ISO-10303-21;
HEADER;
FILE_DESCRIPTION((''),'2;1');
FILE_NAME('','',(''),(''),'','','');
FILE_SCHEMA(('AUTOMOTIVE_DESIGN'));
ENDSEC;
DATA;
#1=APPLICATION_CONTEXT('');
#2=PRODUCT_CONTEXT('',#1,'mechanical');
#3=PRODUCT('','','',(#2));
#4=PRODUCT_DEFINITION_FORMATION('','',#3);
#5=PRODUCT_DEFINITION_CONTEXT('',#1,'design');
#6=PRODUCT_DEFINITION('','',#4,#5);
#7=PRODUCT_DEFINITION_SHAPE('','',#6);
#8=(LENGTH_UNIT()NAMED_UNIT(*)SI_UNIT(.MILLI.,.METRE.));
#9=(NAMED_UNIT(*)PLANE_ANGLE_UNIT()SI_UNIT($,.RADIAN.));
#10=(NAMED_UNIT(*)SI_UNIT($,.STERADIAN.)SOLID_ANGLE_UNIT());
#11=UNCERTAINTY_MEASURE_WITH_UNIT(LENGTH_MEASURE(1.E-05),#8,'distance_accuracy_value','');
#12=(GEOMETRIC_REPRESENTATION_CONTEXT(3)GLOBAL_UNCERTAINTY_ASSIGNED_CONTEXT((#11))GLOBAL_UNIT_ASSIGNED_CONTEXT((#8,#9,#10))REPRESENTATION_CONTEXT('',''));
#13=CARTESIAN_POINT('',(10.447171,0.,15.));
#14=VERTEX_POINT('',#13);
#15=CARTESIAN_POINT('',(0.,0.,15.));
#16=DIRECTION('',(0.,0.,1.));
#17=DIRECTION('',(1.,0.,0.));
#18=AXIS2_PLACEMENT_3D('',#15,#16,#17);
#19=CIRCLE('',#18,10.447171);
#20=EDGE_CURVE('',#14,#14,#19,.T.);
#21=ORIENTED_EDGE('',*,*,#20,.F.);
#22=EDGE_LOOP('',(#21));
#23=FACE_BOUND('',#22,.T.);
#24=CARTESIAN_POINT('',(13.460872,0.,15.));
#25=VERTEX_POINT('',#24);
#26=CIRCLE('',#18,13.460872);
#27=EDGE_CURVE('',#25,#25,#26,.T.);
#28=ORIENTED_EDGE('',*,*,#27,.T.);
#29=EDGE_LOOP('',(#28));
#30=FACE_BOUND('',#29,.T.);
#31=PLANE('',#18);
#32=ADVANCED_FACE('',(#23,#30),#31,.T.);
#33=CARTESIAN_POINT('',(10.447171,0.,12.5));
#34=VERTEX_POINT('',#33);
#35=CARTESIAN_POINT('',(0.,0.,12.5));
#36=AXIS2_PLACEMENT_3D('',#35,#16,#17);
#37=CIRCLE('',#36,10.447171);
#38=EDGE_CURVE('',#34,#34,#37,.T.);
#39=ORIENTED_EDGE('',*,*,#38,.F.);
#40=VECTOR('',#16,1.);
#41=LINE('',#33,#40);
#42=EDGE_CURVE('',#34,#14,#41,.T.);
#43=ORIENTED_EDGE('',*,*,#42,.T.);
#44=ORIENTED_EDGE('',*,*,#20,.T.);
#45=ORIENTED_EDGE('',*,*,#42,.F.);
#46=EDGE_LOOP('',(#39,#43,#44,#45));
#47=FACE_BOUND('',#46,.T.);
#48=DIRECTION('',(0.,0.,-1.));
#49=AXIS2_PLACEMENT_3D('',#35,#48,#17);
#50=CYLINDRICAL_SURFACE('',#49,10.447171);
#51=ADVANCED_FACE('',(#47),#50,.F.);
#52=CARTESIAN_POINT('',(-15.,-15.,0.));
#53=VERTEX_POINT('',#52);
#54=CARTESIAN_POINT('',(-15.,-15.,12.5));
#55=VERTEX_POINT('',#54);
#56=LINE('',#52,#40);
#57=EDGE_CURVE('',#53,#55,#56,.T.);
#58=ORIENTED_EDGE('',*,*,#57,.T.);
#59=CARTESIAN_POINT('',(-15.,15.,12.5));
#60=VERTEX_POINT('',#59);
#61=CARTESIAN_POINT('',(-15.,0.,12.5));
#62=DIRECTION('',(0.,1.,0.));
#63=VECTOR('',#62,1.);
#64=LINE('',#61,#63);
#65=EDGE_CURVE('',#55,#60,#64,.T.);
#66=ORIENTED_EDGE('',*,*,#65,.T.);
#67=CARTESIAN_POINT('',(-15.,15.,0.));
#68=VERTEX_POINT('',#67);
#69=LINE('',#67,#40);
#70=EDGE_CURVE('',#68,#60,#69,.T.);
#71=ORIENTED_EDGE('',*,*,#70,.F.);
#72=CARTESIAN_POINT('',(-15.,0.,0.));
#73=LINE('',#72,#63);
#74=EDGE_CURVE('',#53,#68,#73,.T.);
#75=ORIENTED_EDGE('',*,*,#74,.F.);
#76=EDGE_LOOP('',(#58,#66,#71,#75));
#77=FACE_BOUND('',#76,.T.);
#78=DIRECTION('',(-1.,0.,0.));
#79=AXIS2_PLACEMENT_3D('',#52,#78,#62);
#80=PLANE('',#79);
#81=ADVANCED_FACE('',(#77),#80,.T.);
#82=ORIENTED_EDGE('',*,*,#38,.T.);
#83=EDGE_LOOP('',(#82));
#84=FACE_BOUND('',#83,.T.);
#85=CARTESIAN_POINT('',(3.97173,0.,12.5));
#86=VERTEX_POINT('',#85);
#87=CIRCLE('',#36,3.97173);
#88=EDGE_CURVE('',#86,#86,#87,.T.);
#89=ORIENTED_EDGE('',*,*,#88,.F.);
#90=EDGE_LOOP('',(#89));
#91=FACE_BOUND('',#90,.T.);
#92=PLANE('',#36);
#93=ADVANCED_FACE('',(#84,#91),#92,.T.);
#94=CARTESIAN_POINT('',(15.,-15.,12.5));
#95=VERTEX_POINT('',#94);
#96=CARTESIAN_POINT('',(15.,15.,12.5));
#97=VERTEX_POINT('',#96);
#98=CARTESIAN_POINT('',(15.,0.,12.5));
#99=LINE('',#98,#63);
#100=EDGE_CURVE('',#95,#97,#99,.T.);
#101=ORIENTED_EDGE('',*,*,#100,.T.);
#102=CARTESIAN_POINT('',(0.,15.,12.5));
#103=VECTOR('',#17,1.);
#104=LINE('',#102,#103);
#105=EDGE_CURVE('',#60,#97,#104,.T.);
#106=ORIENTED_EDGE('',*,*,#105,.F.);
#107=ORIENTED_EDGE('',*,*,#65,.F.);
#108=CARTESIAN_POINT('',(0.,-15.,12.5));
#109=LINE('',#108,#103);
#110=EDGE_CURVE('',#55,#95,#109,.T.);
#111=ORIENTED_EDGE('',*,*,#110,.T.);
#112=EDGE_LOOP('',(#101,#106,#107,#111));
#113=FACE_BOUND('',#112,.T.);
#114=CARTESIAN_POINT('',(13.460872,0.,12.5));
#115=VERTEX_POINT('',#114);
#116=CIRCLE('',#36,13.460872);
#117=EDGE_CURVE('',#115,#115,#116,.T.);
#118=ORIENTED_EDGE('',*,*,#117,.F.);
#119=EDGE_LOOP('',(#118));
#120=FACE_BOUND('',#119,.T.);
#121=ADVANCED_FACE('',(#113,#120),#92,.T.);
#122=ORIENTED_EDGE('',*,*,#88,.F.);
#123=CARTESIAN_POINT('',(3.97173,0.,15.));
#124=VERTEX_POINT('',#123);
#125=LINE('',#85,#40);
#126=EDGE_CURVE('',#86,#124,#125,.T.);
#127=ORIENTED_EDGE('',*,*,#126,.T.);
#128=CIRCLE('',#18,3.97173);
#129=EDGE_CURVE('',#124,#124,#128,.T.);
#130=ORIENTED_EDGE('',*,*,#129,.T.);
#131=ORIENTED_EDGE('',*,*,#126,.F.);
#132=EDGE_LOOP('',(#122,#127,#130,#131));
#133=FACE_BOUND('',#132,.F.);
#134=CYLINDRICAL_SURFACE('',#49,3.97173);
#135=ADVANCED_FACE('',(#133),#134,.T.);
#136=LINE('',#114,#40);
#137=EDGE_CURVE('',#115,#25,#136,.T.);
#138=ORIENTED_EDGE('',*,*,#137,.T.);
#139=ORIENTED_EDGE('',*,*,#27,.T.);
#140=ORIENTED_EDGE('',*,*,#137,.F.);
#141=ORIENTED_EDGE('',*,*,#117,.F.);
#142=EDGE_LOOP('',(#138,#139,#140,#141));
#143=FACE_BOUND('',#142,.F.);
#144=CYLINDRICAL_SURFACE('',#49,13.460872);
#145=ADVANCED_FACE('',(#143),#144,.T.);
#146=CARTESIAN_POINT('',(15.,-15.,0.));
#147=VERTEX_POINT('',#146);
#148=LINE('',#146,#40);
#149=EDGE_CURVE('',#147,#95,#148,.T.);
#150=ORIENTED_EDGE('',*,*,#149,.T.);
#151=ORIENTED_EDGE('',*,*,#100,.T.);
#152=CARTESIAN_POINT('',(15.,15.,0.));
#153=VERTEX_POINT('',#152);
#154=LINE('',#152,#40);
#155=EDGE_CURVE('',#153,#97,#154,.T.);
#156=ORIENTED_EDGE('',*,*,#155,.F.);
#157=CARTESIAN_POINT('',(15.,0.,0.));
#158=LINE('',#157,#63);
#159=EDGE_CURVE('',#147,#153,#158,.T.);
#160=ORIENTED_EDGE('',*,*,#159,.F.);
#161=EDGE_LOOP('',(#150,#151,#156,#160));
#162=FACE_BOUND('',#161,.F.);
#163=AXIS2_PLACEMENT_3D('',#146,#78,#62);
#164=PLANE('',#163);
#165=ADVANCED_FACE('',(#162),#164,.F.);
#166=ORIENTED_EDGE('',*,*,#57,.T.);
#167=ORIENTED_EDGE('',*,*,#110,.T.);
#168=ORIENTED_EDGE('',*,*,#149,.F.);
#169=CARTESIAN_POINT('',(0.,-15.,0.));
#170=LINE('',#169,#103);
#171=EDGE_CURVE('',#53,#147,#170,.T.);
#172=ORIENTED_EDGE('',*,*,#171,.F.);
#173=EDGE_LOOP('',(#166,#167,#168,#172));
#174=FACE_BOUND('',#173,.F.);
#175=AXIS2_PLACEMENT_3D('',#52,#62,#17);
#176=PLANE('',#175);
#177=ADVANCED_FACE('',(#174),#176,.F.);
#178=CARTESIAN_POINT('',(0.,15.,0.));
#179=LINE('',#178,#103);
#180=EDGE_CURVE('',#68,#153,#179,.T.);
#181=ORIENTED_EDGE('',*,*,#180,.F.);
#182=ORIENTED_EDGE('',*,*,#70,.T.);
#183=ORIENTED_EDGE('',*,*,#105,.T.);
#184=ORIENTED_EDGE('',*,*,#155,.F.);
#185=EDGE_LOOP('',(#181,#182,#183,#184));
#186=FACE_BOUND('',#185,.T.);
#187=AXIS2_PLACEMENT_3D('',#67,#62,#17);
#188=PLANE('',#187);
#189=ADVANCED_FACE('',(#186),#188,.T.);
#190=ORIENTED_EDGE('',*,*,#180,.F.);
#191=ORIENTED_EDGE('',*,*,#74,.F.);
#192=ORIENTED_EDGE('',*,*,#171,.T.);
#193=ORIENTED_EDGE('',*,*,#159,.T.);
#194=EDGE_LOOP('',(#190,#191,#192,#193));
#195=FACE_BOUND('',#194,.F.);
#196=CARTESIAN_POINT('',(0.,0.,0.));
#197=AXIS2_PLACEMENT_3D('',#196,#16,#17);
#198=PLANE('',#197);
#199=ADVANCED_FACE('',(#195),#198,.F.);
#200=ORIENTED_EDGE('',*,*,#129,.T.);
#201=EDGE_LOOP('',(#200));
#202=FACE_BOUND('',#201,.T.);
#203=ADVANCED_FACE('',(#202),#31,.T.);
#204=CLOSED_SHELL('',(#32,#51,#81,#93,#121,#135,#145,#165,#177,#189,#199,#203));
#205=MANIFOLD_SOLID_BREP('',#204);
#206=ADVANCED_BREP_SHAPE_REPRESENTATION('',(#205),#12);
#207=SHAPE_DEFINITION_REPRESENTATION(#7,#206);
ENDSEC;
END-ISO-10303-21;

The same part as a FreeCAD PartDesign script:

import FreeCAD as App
import Part
import Sketcher

V = App.Vector


def add_polygon(sketch, points):
    """Adds a closed chain of lines whose ends are joined by coincident constraints."""
    first, n = sketch.GeometryCount, len(points)
    for a, b in zip(points, points[1:] + points[:1]):
        sketch.addGeometry(Part.LineSegment(App.Vector(*a, 0), App.Vector(*b, 0)), False)
    for i in range(n):
        sketch.addConstraint(Sketcher.Constraint("Coincident", first + i, 2, first + (i + 1) % n, 1))

doc = App.newDocument("Part")
body = doc.addObject("PartDesign::Body", "Body")

# Sketch on XY plane
sketch1 = body.newObject("Sketcher::SketchObject", "Sketch")
sketch1.AttachmentSupport = (doc.getObject("XY_Plane"), [""])
sketch1.MapMode = "FlatFace"
add_polygon(sketch1, [(-15, 15), (-15, -15), (15, -15), (15, 15)])  # lines 0-3
sketch1.addConstraint(Sketcher.Constraint("Vertical", 0))
sketch1.addConstraint(Sketcher.Constraint("Horizontal", 1))
sketch1.addConstraint(Sketcher.Constraint("Vertical", 2))
sketch1.addConstraint(Sketcher.Constraint("Horizontal", 3))
sketch1.addConstraint(Sketcher.Constraint("Symmetric", 0, 2, 2, 2, -1, 1))
sketch1.addConstraint(Sketcher.Constraint("Equal", 3, 0))
sketch1.addConstraint(Sketcher.Constraint("DistanceX", 1, 1, 1, 2, 30.0))
pad1 = body.newObject("PartDesign::Pad", "Pad")
pad1.Profile = sketch1
pad1.Length = 12.5

# Sketch on XY plane
sketch2 = body.newObject("Sketcher::SketchObject", "Sketch001")
sketch2.AttachmentSupport = (doc.getObject("XY_Plane"), [""])
sketch2.MapMode = "FlatFace"
sketch2.AttachmentOffset = App.Placement(V(0, 0, 12.5), App.Rotation())
sketch2.addGeometry(Part.Circle(V(0, 0, 0), V(0, 0, 1), 13), False)
sketch2.addGeometry(Part.Circle(V(0, 0, 0), V(0, 0, 1), 10), False)
sketch2.addConstraint(Sketcher.Constraint("Coincident", 0, 3, -1, 1))
sketch2.addConstraint(Sketcher.Constraint("Coincident", 1, 3, -1, 1))
sketch2.addConstraint(Sketcher.Constraint("Diameter", 0, 26.921744))
sketch2.addConstraint(Sketcher.Constraint("Diameter", 1, 20.894342))
pad2 = body.newObject("PartDesign::Pad", "Pad001")
pad2.Profile = sketch2
pad2.Length = 2.5

# Sketch on XY plane
sketch3 = body.newObject("Sketcher::SketchObject", "Sketch002")
sketch3.AttachmentSupport = (doc.getObject("XY_Plane"), [""])
sketch3.MapMode = "FlatFace"
sketch3.AttachmentOffset = App.Placement(V(0, 0, 12.5), App.Rotation())
sketch3.addGeometry(Part.Circle(V(0, 0, 0), V(0, 0, 1), 4), False)
sketch3.addConstraint(Sketcher.Constraint("Coincident", 0, 3, -1, 1))
sketch3.addConstraint(Sketcher.Constraint("Diameter", 0, 7.94346))
pad3 = body.newObject("PartDesign::Pad", "Pad002")
pad3.Profile = sketch3
pad3.Length = 2.5

doc.recompute()
